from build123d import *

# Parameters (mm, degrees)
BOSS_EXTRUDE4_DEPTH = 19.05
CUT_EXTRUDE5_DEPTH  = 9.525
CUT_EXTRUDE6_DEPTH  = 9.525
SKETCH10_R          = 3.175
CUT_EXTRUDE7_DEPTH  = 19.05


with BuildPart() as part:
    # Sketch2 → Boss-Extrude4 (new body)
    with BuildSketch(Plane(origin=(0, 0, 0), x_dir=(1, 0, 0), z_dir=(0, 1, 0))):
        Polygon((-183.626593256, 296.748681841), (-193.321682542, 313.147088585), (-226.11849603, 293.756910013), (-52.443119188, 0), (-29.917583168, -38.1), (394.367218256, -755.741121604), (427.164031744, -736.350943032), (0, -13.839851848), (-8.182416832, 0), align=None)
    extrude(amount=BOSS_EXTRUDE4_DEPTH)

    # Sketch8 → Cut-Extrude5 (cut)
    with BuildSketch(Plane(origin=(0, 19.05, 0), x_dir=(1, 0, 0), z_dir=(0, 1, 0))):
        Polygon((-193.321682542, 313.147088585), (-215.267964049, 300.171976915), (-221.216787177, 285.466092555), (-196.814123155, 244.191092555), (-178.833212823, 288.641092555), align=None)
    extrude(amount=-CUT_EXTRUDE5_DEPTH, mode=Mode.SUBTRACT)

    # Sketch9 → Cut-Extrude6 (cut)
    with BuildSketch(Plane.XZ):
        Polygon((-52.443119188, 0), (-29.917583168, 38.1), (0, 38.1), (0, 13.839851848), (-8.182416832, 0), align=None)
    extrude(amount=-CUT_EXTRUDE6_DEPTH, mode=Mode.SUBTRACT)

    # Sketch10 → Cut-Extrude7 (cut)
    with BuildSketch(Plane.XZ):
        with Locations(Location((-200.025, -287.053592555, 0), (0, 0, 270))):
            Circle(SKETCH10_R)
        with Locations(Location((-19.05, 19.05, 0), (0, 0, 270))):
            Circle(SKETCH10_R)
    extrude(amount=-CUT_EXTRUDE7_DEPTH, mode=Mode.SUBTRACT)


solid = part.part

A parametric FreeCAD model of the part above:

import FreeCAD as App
import Part
import Sketcher
Q = App.Units.Quantity


def add_polygon(sketch, points):
    """Adds a closed chain of lines whose ends are joined by coincident constraints."""
    first, n = sketch.GeometryCount, len(points)
    for a, b in zip(points, points[1:] + points[:1]):
        sketch.addGeometry(Part.LineSegment(App.Vector(*a, 0), App.Vector(*b, 0)), False)
    for i in range(n):
        sketch.addConstraint(Sketcher.Constraint("Coincident", first + i, 2, first + (i + 1) % n, 1))

doc = App.newDocument("Part")
params = doc.addObject("Spreadsheet::Sheet", "Params")
for row, (alias, value) in enumerate([
    ("sketch1_length", "1.5 in"),
    ("sketch1_length2", "0.75 in"),
    ("pad1_length", "0.75 in"),
    ("pocket1_length", "0.375 in"),
    ("pocket2_length", "0.375 in"),
    ("sketch4_diameter", "0.25 in"),
    ("pocket3_length", "0.75 in"),
], start=1):
    params.set(f"A{row}", alias)
    params.set(f"B{row}", "=" + value)
    params.setAlias(f"B{row}", alias)

body = doc.addObject("PartDesign::Body", "Body")

sketch1 = body.newObject("Sketcher::SketchObject", "Sketch")
sketch1.AttachmentSupport = (doc.getObject("XZ_Plane"), [""])
sketch1.MapMode = "FlatFace"
add_polygon(sketch1, [(-184, -297), (-193, -313), (-226, -294), (-52, 0), (-30, 38), (394, 756), (427, 736), (0, 14), (-8, 0)])
sketch1.addConstraint([
    Sketcher.Constraint("PointOnObject", 2, 2, -1),
    Sketcher.Constraint("PointOnObject", 6, 2, -2),
    Sketcher.Constraint("PointOnObject", 7, 2, -1),
    Sketcher.Constraint("Perpendicular", 0, 1),
    Sketcher.Constraint("Perpendicular", 1, 2),
    Sketcher.Constraint("Parallel", 2, 3),
    Sketcher.Constraint("Parallel", 3, 4),
    Sketcher.Constraint("Perpendicular", 4, 5),
    Sketcher.Constraint("Perpendicular", 5, 6),
    Sketcher.Constraint("Parallel", 6, 7),
    Sketcher.Constraint("Parallel", 7, 8),
    Sketcher.Constraint("Distance", 1, Q("1.5 in")),
    Sketcher.Constraint("DistanceY", -1, 1, 3, 2, Q("1.5 in")),
    Sketcher.Constraint("Distance", 0, Q("0.75 in")),
    Sketcher.Constraint("DistanceX", 0, 2, 2, 2, Q("5.5464001 in")),
    Sketcher.Constraint("DistanceX", 0, 2, 3, 2, Q("163.404099 mm")),
    Sketcher.Constraint("DistanceX", 3, 2, 4, 2, Q("424.284801 mm")),
    Sketcher.Constraint("Distance", 6, Q("839.339852 mm")),
])
sketch1.setExpression("Constraints[20]", "Params.sketch1_length")
sketch1.setExpression("Constraints[22]", "Params.sketch1_length2")
pad1 = body.newObject("PartDesign::Pad", "Pad")
pad1.Profile = sketch1
pad1.setExpression("Length", "Params.pad1_length")
pad1.Reversed = True

sketch2 = body.newObject("Sketcher::SketchObject", "Sketch001")
sketch2.AttachmentSupport = (doc.getObject("XZ_Plane"), [""])
sketch2.MapMode = "FlatFace"
sketch2.AttachmentOffset = App.Placement(App.Vector(0, 0, -0.75 * 25.4), App.Rotation())
add_polygon(sketch2, [(-193, -313), (-215, -300), (-221, -285), (-197, -244), (-179, -289)])
sketch2.addConstraint([
    Sketcher.Constraint("Perpendicular", 0, 2),
    Sketcher.Constraint("Parallel", 1, 3),
    Sketcher.Constraint("Parallel", 2, 4),
    Sketcher.Constraint("Equal", 2, 3),
    Sketcher.Constraint("DistanceY", 3, 2, 2, 2, Q("1.75 in")),
    Sketcher.Constraint("DistanceY", 1, 2, 2, 2, Q("1.625 in")),
    Sketcher.Constraint("Distance", 1, Q("15.863528 mm")),
    Sketcher.Constraint("DistanceY", 4, 2, -1, 1, Q("313.147089 mm")),
    Sketcher.Constraint("DistanceX", 0, 2, 2, 2, Q("18.453841 mm")),
    Sketcher.Constraint("DistanceX", 0, 2, -1, 1, Q("215.267964 mm")),
])
pocket1 = body.newObject("PartDesign::Pocket", "Pocket")
pocket1.Profile = sketch2
pocket1.setExpression("Length", "Params.pocket1_length")
pocket1.Reversed = True

sketch3 = body.newObject("Sketcher::SketchObject", "Sketch002")
sketch3.AttachmentSupport = (doc.getObject("XZ_Plane"), [""])
sketch3.MapMode = "FlatFace"
add_polygon(sketch3, [(-30, 38), (-52, 0), (-8, 0), (0, 14), (0, 38)])
sketch3.addConstraint([
    Sketcher.Constraint("Horizontal", 1),
    Sketcher.Constraint("Vertical", 3),
    Sketcher.Constraint("Horizontal", 4),
    Sketcher.Constraint("PointOnObject", 0, 2, -1),
    Sketcher.Constraint("PointOnObject", 2, 2, -2),
    Sketcher.Constraint("Parallel", 0, 2),
    Sketcher.Constraint("DistanceY", -1, 1, 3, 2, Q("1.5 in")),
    Sketcher.Constraint("DistanceY", 3, 1, 3, 2, Q("24.260148 mm")),
    Sketcher.Constraint("Distance", 2, Q("16.077731 mm")),
    Sketcher.Constraint("DistanceX", 1, 1, 1, 2, Q("44.260702 mm")),
])
pocket2 = body.newObject("PartDesign::Pocket", "Pocket001")
pocket2.Profile = sketch3
pocket2.setExpression("Length", "Params.pocket2_length")

sketch4 = body.newObject("Sketcher::SketchObject", "Sketch003")
sketch4.AttachmentSupport = (doc.getObject("XZ_Plane"), [""])
sketch4.MapMode = "FlatFace"
sketch4.addGeometry([
    Part.Circle(App.Vector(-200, -287.1, 0), App.Vector(0, 0, 1), 3.2),
    Part.Circle(App.Vector(-19.1, 19.1, 0), App.Vector(0, 0, 1), 3.2),
], False)
sketch4.addConstraint([
    Sketcher.Constraint("Equal", 0, 1),
    Sketcher.Constraint("Diameter", 0, Q("0.25 in")),
    Sketcher.Constraint("DistanceX", 1, 3, -1, 1, Q("0.75 in")),
    Sketcher.Constraint("DistanceY", -1, 1, 1, 3, Q("0.75 in")),
    Sketcher.Constraint("DistanceX", 0, 3, -1, 1, Q("7.875 in")),
    Sketcher.Constraint("DistanceY", 0, 3, -1, 1, Q("287.053593 mm")),
])
sketch4.setExpression("Constraints[1]", "Params.sketch4_diameter")
pocket3 = body.newObject("PartDesign::Pocket", "Pocket002")
pocket3.Profile = sketch4
pocket3.setExpression("Length", "Params.pocket3_length")

doc.recompute()
